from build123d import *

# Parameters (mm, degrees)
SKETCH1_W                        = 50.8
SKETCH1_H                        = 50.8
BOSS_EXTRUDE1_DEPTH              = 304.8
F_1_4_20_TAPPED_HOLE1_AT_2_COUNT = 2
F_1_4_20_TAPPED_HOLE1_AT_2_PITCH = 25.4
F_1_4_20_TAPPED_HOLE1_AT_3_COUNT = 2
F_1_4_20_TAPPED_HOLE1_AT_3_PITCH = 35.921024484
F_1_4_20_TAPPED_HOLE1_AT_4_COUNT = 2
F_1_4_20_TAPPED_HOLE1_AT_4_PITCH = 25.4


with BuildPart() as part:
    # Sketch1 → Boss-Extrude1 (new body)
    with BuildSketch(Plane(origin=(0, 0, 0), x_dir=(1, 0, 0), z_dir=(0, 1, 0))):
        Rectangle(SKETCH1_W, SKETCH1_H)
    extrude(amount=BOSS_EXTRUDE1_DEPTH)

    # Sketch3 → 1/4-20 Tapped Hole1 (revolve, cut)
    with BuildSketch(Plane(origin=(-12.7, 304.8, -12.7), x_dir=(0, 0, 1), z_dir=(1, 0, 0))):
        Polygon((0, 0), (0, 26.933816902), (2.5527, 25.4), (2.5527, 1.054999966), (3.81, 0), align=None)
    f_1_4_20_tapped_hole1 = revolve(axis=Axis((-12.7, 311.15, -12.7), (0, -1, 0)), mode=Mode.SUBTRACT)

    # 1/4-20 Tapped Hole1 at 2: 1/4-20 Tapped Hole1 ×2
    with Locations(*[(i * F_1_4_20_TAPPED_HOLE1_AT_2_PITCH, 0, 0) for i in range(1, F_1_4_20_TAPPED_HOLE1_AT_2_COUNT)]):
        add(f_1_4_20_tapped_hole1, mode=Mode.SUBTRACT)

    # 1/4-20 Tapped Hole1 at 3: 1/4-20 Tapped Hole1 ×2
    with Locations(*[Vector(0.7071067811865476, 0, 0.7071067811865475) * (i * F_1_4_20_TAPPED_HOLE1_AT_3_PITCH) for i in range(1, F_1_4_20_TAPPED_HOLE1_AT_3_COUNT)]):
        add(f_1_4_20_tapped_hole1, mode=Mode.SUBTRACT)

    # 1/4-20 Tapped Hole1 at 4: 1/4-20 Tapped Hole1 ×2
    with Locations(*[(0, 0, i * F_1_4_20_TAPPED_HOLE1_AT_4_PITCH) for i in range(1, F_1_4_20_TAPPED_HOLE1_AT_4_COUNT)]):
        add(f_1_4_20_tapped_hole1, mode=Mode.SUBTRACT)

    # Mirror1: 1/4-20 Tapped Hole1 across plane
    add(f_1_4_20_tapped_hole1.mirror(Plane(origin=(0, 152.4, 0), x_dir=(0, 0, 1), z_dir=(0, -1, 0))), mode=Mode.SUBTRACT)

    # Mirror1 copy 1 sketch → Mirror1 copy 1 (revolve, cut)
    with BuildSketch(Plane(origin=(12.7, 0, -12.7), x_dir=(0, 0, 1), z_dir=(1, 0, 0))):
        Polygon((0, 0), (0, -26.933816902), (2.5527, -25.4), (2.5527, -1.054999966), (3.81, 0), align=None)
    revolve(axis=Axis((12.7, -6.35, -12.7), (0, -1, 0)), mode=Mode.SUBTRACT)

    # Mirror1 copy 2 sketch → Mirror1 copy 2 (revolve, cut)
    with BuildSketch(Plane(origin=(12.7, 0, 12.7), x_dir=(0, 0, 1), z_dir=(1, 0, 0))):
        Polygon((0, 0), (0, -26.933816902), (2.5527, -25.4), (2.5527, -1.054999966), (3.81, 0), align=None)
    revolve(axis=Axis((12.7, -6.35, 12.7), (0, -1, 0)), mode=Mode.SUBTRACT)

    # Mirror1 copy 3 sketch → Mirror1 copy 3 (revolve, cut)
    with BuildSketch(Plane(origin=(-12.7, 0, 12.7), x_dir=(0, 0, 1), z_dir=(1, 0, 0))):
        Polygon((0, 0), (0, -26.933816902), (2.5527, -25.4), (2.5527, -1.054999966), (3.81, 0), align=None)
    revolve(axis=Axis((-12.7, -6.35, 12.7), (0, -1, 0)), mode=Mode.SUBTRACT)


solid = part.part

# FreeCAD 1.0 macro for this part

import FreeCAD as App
import Part
import Sketcher

V = App.Vector
Q = App.Units.Quantity


def add_polygon(sketch, points):
    """Adds a closed chain of lines whose ends are joined by coincident constraints."""
    first, n = sketch.GeometryCount, len(points)
    for a, b in zip(points, points[1:] + points[:1]):
        sketch.addGeometry(Part.LineSegment(App.Vector(*a, 0), App.Vector(*b, 0)), False)
    for i in range(n):
        sketch.addConstraint(Sketcher.Constraint("Coincident", first + i, 2, first + (i + 1) % n, 1))

doc = App.newDocument("Part")
body = doc.addObject("PartDesign::Body", "Body")

# Sketch on XZ plane
sketch1 = doc.addObject("Sketcher::SketchObject", "Sketch")
body.addObject(sketch1)
sketch1.AttachmentSupport = (doc.XZ_Plane, [""])
sketch1.MapMode = "FlatFace"
add_polygon(sketch1, [(-25, -25), (-25, 25), (25, 25), (25, -25)])  # lines 0-3
sketch1.addConstraint(Sketcher.Constraint("Vertical", 0))
sketch1.addConstraint(Sketcher.Constraint("Horizontal", 1))
sketch1.addConstraint(Sketcher.Constraint("Vertical", 2))
sketch1.addConstraint(Sketcher.Constraint("Horizontal", 3))
sketch1.addConstraint(Sketcher.Constraint("Symmetric", 0, 2, 2, 2, -1, 1))
sketch1.addConstraint(Sketcher.Constraint("Equal", 3, 0))
sketch1.addConstraint(Sketcher.Constraint("DistanceX", 1, 1, 1, 2, Q("2 in")))
pad1 = doc.addObject("PartDesign::Pad", "Pad")
body.addObject(pad1)
pad1.Profile = sketch1
pad1.Length = Q("12 in")
pad1.Reversed = True

# Sketch on YZ plane
sketch2 = doc.addObject("Sketcher::SketchObject", "Sketch001")
body.addObject(sketch2)
sketch2.AttachmentSupport = (doc.YZ_Plane, [""])
sketch2.MapMode = "FlatFace"
sketch2.AttachmentOffset = App.Placement(V(0, 0, -0.5 * 25.4), App.Rotation())
add_polygon(sketch2, [(277.9, -12.7), (304.8, -12.7), (304.8, -8.9), (303.7, -10.1), (279.4, -10.1)])  # lines 0-4
sketch2.addGeometry(Part.LineSegment(V(304.8, -12.7, 0), V(277.9, -12.7, 0)), True)  # axis
sketch2.addConstraint(Sketcher.Constraint("Horizontal", 0))
sketch2.addConstraint(Sketcher.Constraint("Vertical", 1))
sketch2.addConstraint(Sketcher.Constraint("Horizontal", 3))
sketch2.addConstraint(Sketcher.Constraint("Horizontal", 5))
sketch2.addConstraint(Sketcher.Constraint("Coincident", 5, 1, 0, 2))
sketch2.addConstraint(Sketcher.Constraint("Equal", 0, 5))
sketch2.addConstraint(Sketcher.Constraint("DistanceX", -1, 1, 0, 2, Q("12 in")))
sketch2.addConstraint(Sketcher.Constraint("DistanceX", -1, 1, 3, 2, Q("11 in")))
sketch2.addConstraint(Sketcher.Constraint("Angle", 2, Q("-130 deg")))
sketch2.addConstraint(Sketcher.Constraint("Angle", 4, Q("-121 deg")))
sketch2.addConstraint(Sketcher.Constraint("DistanceY", 1, 1, 1, 2, Q("0.15 in")))
sketch2.addConstraint(Sketcher.Constraint("DistanceY", 0, 2, -1, 1, Q("0.5 in")))
sketch2.addConstraint(Sketcher.Constraint("DistanceX", 3, 2, 3, 1, 24.345))
groove = doc.addObject("PartDesign::Groove", "Groove")
body.addObject(groove)
groove.Profile = sketch2
groove.ReferenceAxis = (sketch2, ["Axis0"])
groove.Angle = 360
doc.recompute()

linearpattern = doc.addObject("PartDesign::LinearPattern", "LinearPattern")
body.addObject(linearpattern)
linearpattern.Originals = [groove]
linearpattern.Direction = (doc.X_Axis, [""])
linearpattern.Mode = "offset"
linearpattern.Offset = Q("1 in")
linearpattern.Occurrences = 2
body.Tip = linearpattern
doc.recompute()

datumline = doc.addObject("PartDesign::Line", "DatumLine")
body.addObject(datumline)
datumline.Placement = App.Placement(V(0, 0, 0), App.Rotation(V(0, 0, 1), V(0.707106781, 0, 0.707106781)))
linearpattern2 = doc.addObject("PartDesign::LinearPattern", "LinearPattern001")
body.addObject(linearpattern2)
linearpattern2.Originals = [groove]
linearpattern2.Direction = (datumline, [""])
linearpattern2.Mode = "offset"
linearpattern2.Offset = 35.921024
linearpattern2.Occurrences = 2
body.Tip = linearpattern2
doc.recompute()

linearpattern3 = doc.addObject("PartDesign::LinearPattern", "LinearPattern002")
body.addObject(linearpattern3)
linearpattern3.Originals = [groove]
linearpattern3.Direction = (doc.Z_Axis, [""])
linearpattern3.Mode = "offset"
linearpattern3.Offset = Q("1 in")
linearpattern3.Occurrences = 2
body.Tip = linearpattern3
doc.recompute()

datumplane = doc.addObject("PartDesign::Plane", "DatumPlane")
body.addObject(datumplane)
datumplane.AttachmentSupport = (doc.XZ_Plane, [""])
datumplane.MapMode = "FlatFace"
datumplane.AttachmentOffset = App.Placement(V(0, 0, -6 * 25.4), App.Rotation())
mirrored = doc.addObject("PartDesign::Mirrored", "Mirrored")
body.addObject(mirrored)
mirrored.Originals = [groove]
mirrored.MirrorPlane = (datumplane, [""])
body.Tip = mirrored

# Sketch on YZ plane
sketch3 = doc.addObject("Sketcher::SketchObject", "Sketch002")
body.addObject(sketch3)
sketch3.AttachmentSupport = (doc.YZ_Plane, [""])
sketch3.MapMode = "FlatFace"
sketch3.AttachmentOffset = App.Placement(V(0, 0, 0.5 * 25.4), App.Rotation())
add_polygon(sketch3, [(0, -12.7), (26.9, -12.7), (25.4, -10.1), (1.1, -10.1), (0, -8.9)])  # lines 0-4
sketch3.addGeometry(Part.LineSegment(V(26.9, -12.7, 0), V(0, -12.7, 0)), True)  # axis
sketch3.addConstraint(Sketcher.Constraint("Horizontal", 0))
sketch3.addConstraint(Sketcher.Constraint("Horizontal", 2))
sketch3.addConstraint(Sketcher.Constraint("Vertical", 4))
sketch3.addConstraint(Sketcher.Constraint("Horizontal", 5))
sketch3.addConstraint(Sketcher.Constraint("Coincident", 5, 1, 0, 2))
sketch3.addConstraint(Sketcher.Constraint("PointOnObject", 3, 2, -2))
sketch3.addConstraint(Sketcher.Constraint("PointOnObject", 5, 2, -2))
sketch3.addConstraint(Sketcher.Constraint("DistanceX", -1, 1, 1, 2, Q("1 in")))
sketch3.addConstraint(Sketcher.Constraint("Angle", 1, Q("121 deg")))
sketch3.addConstraint(Sketcher.Constraint("Angle", 3, Q("130 deg")))
sketch3.addConstraint(Sketcher.Constraint("DistanceY", 4, 2, 4, 1, Q("0.15 in")))
sketch3.addConstraint(Sketcher.Constraint("DistanceY", 0, 2, -1, 1, Q("0.5 in")))
sketch3.addConstraint(Sketcher.Constraint("DistanceX", 2, 2, 2, 1, 24.345))
groove2 = doc.addObject("PartDesign::Groove", "Groove001")
body.addObject(groove2)
groove2.Profile = sketch3
groove2.ReferenceAxis = (sketch3, ["Axis0"])
groove2.Angle = 360

# Sketch on YZ plane
sketch4 = doc.addObject("Sketcher::SketchObject", "Sketch003")
body.addObject(sketch4)
sketch4.AttachmentSupport = (doc.YZ_Plane, [""])
sketch4.MapMode = "FlatFace"
sketch4.AttachmentOffset = App.Placement(V(0, 0, 0.5 * 25.4), App.Rotation())
add_polygon(sketch4, [(0, 12.7), (26.9, 12.7), (25.4, 15.3), (1.1, 15.3), (0, 16.5)])  # lines 0-4
sketch4.addGeometry(Part.LineSegment(V(26.9, 12.7, 0), V(0, 12.7, 0)), True)  # axis
sketch4.addConstraint(Sketcher.Constraint("Horizontal", 0))
sketch4.addConstraint(Sketcher.Constraint("Horizontal", 2))
sketch4.addConstraint(Sketcher.Constraint("Vertical", 4))
sketch4.addConstraint(Sketcher.Constraint("Horizontal", 5))
sketch4.addConstraint(Sketcher.Constraint("Coincident", 5, 1, 0, 2))
sketch4.addConstraint(Sketcher.Constraint("PointOnObject", 3, 2, -2))
sketch4.addConstraint(Sketcher.Constraint("PointOnObject", 5, 2, -2))
sketch4.addConstraint(Sketcher.Constraint("DistanceX", -1, 1, 1, 2, Q("1 in")))
sketch4.addConstraint(Sketcher.Constraint("Angle", 1, Q("121 deg")))
sketch4.addConstraint(Sketcher.Constraint("Angle", 3, Q("130 deg")))
sketch4.addConstraint(Sketcher.Constraint("DistanceY", 4, 2, 4, 1, Q("0.15 in")))
sketch4.addConstraint(Sketcher.Constraint("DistanceY", -1, 1, 0, 2, Q("0.5 in")))
sketch4.addConstraint(Sketcher.Constraint("DistanceX", 2, 2, 2, 1, 24.345))
groove3 = doc.addObject("PartDesign::Groove", "Groove002")
body.addObject(groove3)
groove3.Profile = sketch4
groove3.ReferenceAxis = (sketch4, ["Axis0"])
groove3.Angle = 360

# Sketch on YZ plane
sketch5 = doc.addObject("Sketcher::SketchObject", "Sketch004")
body.addObject(sketch5)
sketch5.AttachmentSupport = (doc.YZ_Plane, [""])
sketch5.MapMode = "FlatFace"
sketch5.AttachmentOffset = App.Placement(V(0, 0, -0.5 * 25.4), App.Rotation())
add_polygon(sketch5, [(0, 12.7), (26.9, 12.7), (25.4, 15.3), (1.1, 15.3), (0, 16.5)])  # lines 0-4
sketch5.addGeometry(Part.LineSegment(V(26.9, 12.7, 0), V(0, 12.7, 0)), True)  # axis
sketch5.addConstraint(Sketcher.Constraint("Horizontal", 0))
sketch5.addConstraint(Sketcher.Constraint("Horizontal", 2))
sketch5.addConstraint(Sketcher.Constraint("Vertical", 4))
sketch5.addConstraint(Sketcher.Constraint("Horizontal", 5))
sketch5.addConstraint(Sketcher.Constraint("Coincident", 5, 1, 0, 2))
sketch5.addConstraint(Sketcher.Constraint("PointOnObject", 3, 2, -2))
sketch5.addConstraint(Sketcher.Constraint("PointOnObject", 5, 2, -2))
sketch5.addConstraint(Sketcher.Constraint("DistanceX", -1, 1, 1, 2, Q("1 in")))
sketch5.addConstraint(Sketcher.Constraint("Angle", 1, Q("121 deg")))
sketch5.addConstraint(Sketcher.Constraint("Angle", 3, Q("130 deg")))
sketch5.addConstraint(Sketcher.Constraint("DistanceY", 4, 2, 4, 1, Q("0.15 in")))
sketch5.addConstraint(Sketcher.Constraint("DistanceY", -1, 1, 0, 2, Q("0.5 in")))
sketch5.addConstraint(Sketcher.Constraint("DistanceX", 2, 2, 2, 1, 24.345))
groove4 = doc.addObject("PartDesign::Groove", "Groove003")
body.addObject(groove4)
groove4.Profile = sketch5
groove4.ReferenceAxis = (sketch5, ["Axis0"])
groove4.Angle = 360

doc.recompute()
